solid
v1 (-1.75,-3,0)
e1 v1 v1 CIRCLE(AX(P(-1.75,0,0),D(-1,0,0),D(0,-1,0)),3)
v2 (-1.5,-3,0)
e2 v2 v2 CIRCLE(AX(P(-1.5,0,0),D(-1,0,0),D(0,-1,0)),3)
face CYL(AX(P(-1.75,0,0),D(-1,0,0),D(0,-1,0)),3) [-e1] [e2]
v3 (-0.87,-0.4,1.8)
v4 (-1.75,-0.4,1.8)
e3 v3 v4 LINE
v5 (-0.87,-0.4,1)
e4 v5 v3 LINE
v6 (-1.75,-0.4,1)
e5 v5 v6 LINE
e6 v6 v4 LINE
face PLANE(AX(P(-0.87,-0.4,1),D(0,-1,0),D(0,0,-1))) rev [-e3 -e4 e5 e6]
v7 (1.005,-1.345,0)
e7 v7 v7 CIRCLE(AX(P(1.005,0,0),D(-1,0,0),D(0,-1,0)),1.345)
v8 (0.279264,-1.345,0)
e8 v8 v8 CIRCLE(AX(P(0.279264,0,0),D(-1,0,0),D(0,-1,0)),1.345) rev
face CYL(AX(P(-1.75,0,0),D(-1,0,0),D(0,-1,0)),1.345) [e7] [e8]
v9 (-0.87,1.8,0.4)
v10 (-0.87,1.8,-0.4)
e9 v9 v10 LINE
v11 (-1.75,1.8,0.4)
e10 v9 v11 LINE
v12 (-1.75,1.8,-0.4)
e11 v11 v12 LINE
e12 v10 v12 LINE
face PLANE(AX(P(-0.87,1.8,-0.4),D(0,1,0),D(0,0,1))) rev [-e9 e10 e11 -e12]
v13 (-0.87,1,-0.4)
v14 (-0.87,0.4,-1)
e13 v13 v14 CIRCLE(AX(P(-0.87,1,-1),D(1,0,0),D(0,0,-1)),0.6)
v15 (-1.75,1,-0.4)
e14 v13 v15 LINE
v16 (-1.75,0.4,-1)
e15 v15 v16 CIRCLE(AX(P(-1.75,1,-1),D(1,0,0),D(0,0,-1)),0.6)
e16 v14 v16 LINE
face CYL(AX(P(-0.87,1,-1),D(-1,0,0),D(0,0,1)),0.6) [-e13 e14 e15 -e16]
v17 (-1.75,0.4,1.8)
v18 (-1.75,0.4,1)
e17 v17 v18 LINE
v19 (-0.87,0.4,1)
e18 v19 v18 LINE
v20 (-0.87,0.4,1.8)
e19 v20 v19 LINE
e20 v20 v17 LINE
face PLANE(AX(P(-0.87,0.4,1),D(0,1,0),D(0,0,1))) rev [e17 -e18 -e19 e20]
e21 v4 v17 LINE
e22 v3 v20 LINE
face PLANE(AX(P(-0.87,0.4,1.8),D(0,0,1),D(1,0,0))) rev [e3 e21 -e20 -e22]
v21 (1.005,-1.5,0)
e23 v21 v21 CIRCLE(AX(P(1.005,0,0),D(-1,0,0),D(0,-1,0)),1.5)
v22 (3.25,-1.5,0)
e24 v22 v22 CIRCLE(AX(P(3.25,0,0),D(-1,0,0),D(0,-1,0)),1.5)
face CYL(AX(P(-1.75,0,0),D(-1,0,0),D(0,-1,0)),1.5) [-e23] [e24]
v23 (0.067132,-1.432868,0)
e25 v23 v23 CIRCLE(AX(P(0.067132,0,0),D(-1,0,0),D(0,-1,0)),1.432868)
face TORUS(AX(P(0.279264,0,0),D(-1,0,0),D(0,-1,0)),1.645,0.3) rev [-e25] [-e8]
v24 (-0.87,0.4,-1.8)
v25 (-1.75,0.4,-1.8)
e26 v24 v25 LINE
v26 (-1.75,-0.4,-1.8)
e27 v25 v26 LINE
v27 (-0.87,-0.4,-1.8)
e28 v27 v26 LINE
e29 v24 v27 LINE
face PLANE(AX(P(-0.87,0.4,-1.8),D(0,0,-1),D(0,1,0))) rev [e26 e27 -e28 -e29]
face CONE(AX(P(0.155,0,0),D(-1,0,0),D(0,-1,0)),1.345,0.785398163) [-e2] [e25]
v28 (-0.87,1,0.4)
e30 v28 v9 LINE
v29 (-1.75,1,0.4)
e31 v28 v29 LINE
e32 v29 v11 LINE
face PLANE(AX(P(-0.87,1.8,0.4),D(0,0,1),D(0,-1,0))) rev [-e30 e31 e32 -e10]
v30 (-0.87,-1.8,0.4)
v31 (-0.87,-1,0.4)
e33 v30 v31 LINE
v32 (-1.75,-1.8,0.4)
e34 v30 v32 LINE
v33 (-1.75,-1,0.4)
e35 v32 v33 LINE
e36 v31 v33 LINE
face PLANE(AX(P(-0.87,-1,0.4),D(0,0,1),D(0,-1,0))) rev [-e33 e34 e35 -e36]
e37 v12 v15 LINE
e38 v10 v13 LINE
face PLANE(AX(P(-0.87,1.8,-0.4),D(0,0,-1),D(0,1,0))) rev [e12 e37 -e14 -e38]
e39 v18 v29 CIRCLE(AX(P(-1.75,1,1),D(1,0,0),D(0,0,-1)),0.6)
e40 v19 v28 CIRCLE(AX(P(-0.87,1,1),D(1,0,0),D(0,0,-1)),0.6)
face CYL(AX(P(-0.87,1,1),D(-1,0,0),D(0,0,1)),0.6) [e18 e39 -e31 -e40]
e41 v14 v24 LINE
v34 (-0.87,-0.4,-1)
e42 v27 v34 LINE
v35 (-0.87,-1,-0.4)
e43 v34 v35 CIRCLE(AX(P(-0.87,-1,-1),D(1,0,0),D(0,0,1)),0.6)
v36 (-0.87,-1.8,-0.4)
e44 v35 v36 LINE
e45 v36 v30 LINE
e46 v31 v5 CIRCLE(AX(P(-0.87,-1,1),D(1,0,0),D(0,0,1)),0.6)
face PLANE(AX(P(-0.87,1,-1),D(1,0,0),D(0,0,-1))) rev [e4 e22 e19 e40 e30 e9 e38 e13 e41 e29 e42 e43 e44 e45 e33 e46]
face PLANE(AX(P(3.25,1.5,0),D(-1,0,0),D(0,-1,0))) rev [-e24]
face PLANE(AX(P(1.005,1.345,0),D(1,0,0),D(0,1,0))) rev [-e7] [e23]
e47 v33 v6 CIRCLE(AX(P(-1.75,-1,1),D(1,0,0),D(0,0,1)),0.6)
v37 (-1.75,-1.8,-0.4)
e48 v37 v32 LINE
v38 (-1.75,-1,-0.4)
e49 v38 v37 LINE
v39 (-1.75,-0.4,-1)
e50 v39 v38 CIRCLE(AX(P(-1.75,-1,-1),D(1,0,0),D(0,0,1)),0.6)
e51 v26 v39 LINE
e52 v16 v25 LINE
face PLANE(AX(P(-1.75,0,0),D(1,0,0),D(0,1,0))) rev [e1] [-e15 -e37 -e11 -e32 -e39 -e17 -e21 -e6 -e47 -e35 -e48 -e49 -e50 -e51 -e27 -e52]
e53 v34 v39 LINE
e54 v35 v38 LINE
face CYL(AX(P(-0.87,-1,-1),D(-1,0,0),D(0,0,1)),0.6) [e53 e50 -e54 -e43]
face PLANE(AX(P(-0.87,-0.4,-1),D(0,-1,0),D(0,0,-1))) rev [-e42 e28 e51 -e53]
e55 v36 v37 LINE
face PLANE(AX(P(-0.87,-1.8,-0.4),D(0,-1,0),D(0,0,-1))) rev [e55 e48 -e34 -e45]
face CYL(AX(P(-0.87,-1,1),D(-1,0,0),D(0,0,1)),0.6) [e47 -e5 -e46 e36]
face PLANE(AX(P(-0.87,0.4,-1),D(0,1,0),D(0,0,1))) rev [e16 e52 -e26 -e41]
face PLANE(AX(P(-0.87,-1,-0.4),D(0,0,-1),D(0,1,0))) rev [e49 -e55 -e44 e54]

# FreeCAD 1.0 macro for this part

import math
import FreeCAD as App
import Part
import Sketcher
from FreeCAD import Vector
Q = App.Units.Quantity


def edges_at(feature, points):
    """Names of the edges that pass closest to the given points."""
    edges = feature.Shape.Edges
    near = lambda p: min(range(len(edges)), key=lambda i: edges[i].distToShape(Part.Vertex(*p))[0])
    return sorted({f"Edge{near(p) + 1}" for p in points})

doc = App.newDocument("Part")
body = doc.addObject("PartDesign::Body", "Body")

# Sketch on XY plane
sketch1 = body.newObject("Sketcher::SketchObject", "Sketch")
sketch1.AttachmentSupport = (doc.getObject("XY_Plane"), [""])
sketch1.MapMode = "FlatFace"
sketch1.addGeometry(Part.LineSegment(Vector(-1.75, 3, 0), Vector(-1.75, 0, 0)), False)
sketch1.addGeometry(Part.LineSegment(Vector(-1.75, 0, 0), Vector(3.25, 0, 0)), False)
sketch1.addGeometry(Part.LineSegment(Vector(3.25, 0, 0), Vector(3.25, 1.5, 0)), False)
sketch1.addGeometry(Part.LineSegment(Vector(3.25, 1.5, 0), Vector(1, 1.5, 0)), False)
sketch1.addGeometry(Part.LineSegment(Vector(1, 1.5, 0), Vector(1, 1.34, 0)), False)
sketch1.addGeometry(Part.LineSegment(Vector(1, 1.34, 0), Vector(0.15, 1.34, 0)), False)
sketch1.addGeometry(Part.LineSegment(Vector(0.15, 1.34, 0), Vector(-1.5, 3, 0)), False)
sketch1.addGeometry(Part.LineSegment(Vector(-1.5, 3, 0), Vector(-1.75, 3, 0)), False)
sketch1.addConstraint(Sketcher.Constraint("Coincident", 0, 2, 1, 1))
sketch1.addConstraint(Sketcher.Constraint("Coincident", 1, 2, 2, 1))
sketch1.addConstraint(Sketcher.Constraint("Coincident", 2, 2, 3, 1))
sketch1.addConstraint(Sketcher.Constraint("Coincident", 3, 2, 4, 1))
sketch1.addConstraint(Sketcher.Constraint("Coincident", 4, 2, 5, 1))
sketch1.addConstraint(Sketcher.Constraint("Coincident", 5, 2, 6, 1))
sketch1.addConstraint(Sketcher.Constraint("Coincident", 6, 2, 7, 1))
sketch1.addConstraint(Sketcher.Constraint("Coincident", 7, 2, 0, 1))
sketch1.addConstraint(Sketcher.Constraint("Vertical", 0))
sketch1.addConstraint(Sketcher.Constraint("Horizontal", 1))
sketch1.addConstraint(Sketcher.Constraint("Vertical", 2))
sketch1.addConstraint(Sketcher.Constraint("Horizontal", 3))
sketch1.addConstraint(Sketcher.Constraint("Vertical", 4))
sketch1.addConstraint(Sketcher.Constraint("Horizontal", 5))
sketch1.addConstraint(Sketcher.Constraint("Horizontal", 7))
sketch1.addConstraint(Sketcher.Constraint("PointOnObject", 0, 2, -1))
sketch1.addConstraint(Sketcher.Constraint("DistanceX", 1, 1, 1, 2, Q("5 mm")))
sketch1.addConstraint(Sketcher.Constraint("DistanceY", 0, 2, 0, 1, Q("3 mm")))
sketch1.addConstraint(Sketcher.Constraint("Angle", 6, Q("135 deg")))
sketch1.addConstraint(Sketcher.Constraint("DistanceY", 2, 1, 2, 2, Q("1.5 mm")))
sketch1.addConstraint(Sketcher.Constraint("DistanceX", 5, 2, 5, 1, Q("0.85 mm")))
sketch1.addConstraint(Sketcher.Constraint("DistanceX", 7, 2, 7, 1, Q("0.25 mm")))
sketch1.addConstraint(Sketcher.Constraint("DistanceX", 6, 2, -1, 1, Q("1.5 mm")))
sketch1.addConstraint(Sketcher.Constraint("DistanceX", 3, 2, 3, 1, Q("2.245 mm")))
revolution = body.newObject("PartDesign::Revolution", "Revolution")
revolution.Profile = sketch1
revolution.ReferenceAxis = (sketch1, ["H_Axis"])
revolution.Angle = 360
doc.recompute()

fillet = body.newObject("PartDesign::Fillet", "Fillet")
fillet.Base = (revolution, edges_at(revolution, [(0.155, 1.345, 0)]))
fillet.Radius = 0.3

# Sketch on YZ plane
sketch2 = body.newObject("Sketcher::SketchObject", "Sketch001")
sketch2.AttachmentSupport = (doc.getObject("YZ_Plane"), [""])
sketch2.MapMode = "FlatFace"
sketch2.AttachmentOffset = App.Placement(Vector(0, 0, -1.75), App.Rotation())
sketch2.addGeometry(Part.LineSegment(Vector(1.8, 0.4, 0), Vector(1.8, -0.4, 0)), False)
sketch2.addGeometry(Part.LineSegment(Vector(1.8, -0.4, 0), Vector(1, -0.4, 0)), False)
sketch2.addGeometry(Part.ArcOfCircle(Part.Circle(Vector(1, -1, 0), Vector(0, 0, 1), 0.6), math.radians(90), math.radians(180)), False)
sketch2.addGeometry(Part.LineSegment(Vector(0.4, -1, 0), Vector(0.4, -1.8, 0)), False)
sketch2.addGeometry(Part.LineSegment(Vector(0.4, -1.8, 0), Vector(-0.4, -1.8, 0)), False)
sketch2.addGeometry(Part.LineSegment(Vector(-0.4, -1.8, 0), Vector(-0.4, -1, 0)), False)
sketch2.addGeometry(Part.ArcOfCircle(Part.Circle(Vector(-1, -1, 0), Vector(0, 0, 1), 0.6), math.radians(0), math.radians(90)), False)
sketch2.addGeometry(Part.LineSegment(Vector(-1, -0.4, 0), Vector(-1.8, -0.4, 0)), False)
sketch2.addGeometry(Part.LineSegment(Vector(-1.8, -0.4, 0), Vector(-1.8, 0.4, 0)), False)
sketch2.addGeometry(Part.LineSegment(Vector(-1.8, 0.4, 0), Vector(-1, 0.4, 0)), False)
sketch2.addGeometry(Part.ArcOfCircle(Part.Circle(Vector(-1, 1, 0), Vector(0, 0, 1), 0.6), math.radians(-90), math.radians(0)), False)
sketch2.addGeometry(Part.LineSegment(Vector(-0.4, 1, 0), Vector(-0.4, 1.8, 0)), False)
sketch2.addGeometry(Part.LineSegment(Vector(-0.4, 1.8, 0), Vector(0.4, 1.8, 0)), False)
sketch2.addGeometry(Part.LineSegment(Vector(0.4, 1.8, 0), Vector(0.4, 1, 0)), False)
sketch2.addGeometry(Part.ArcOfCircle(Part.Circle(Vector(1, 1, 0), Vector(0, 0, 1), 0.6), math.radians(180), math.radians(270)), False)
sketch2.addGeometry(Part.LineSegment(Vector(1, 0.4, 0), Vector(1.8, 0.4, 0)), False)
sketch2.addConstraint(Sketcher.Constraint("Coincident", 0, 2, 1, 1))
sketch2.addConstraint(Sketcher.Constraint("Tangent", 1, 2, 2, 1))
sketch2.addConstraint(Sketcher.Constraint("Tangent", 2, 2, 3, 1))
sketch2.addConstraint(Sketcher.Constraint("Coincident", 3, 2, 4, 1))
sketch2.addConstraint(Sketcher.Constraint("Coincident", 4, 2, 5, 1))
sketch2.addConstraint(Sketcher.Constraint("Tangent", 5, 2, 6, 1))
sketch2.addConstraint(Sketcher.Constraint("Tangent", 6, 2, 7, 1))
sketch2.addConstraint(Sketcher.Constraint("Coincident", 7, 2, 8, 1))
sketch2.addConstraint(Sketcher.Constraint("Coincident", 8, 2, 9, 1))
sketch2.addConstraint(Sketcher.Constraint("Tangent", 9, 2, 10, 1))
sketch2.addConstraint(Sketcher.Constraint("Tangent", 10, 2, 11, 1))
sketch2.addConstraint(Sketcher.Constraint("Coincident", 11, 2, 12, 1))
sketch2.addConstraint(Sketcher.Constraint("Coincident", 12, 2, 13, 1))
sketch2.addConstraint(Sketcher.Constraint("Tangent", 13, 2, 14, 1))
sketch2.addConstraint(Sketcher.Constraint("Tangent", 14, 2, 15, 1))
sketch2.addConstraint(Sketcher.Constraint("Coincident", 15, 2, 0, 1))
sketch2.addConstraint(Sketcher.Constraint("Vertical", 0))
sketch2.addConstraint(Sketcher.Constraint("Horizontal", 1))
sketch2.addConstraint(Sketcher.Constraint("Vertical", 3))
sketch2.addConstraint(Sketcher.Constraint("Horizontal", 4))
sketch2.addConstraint(Sketcher.Constraint("Vertical", 5))
sketch2.addConstraint(Sketcher.Constraint("Horizontal", 7))
sketch2.addConstraint(Sketcher.Constraint("Vertical", 8))
sketch2.addConstraint(Sketcher.Constraint("Horizontal", 9))
sketch2.addConstraint(Sketcher.Constraint("Vertical", 11))
sketch2.addConstraint(Sketcher.Constraint("Horizontal", 12))
sketch2.addConstraint(Sketcher.Constraint("Vertical", 13))
sketch2.addConstraint(Sketcher.Constraint("Horizontal", 15))
sketch2.addConstraint(Sketcher.Constraint("Equal", 2, 6))
sketch2.addConstraint(Sketcher.Constraint("Equal", 6, 10))
sketch2.addConstraint(Sketcher.Constraint("Equal", 10, 14))
sketch2.addConstraint(Sketcher.Constraint("Symmetric", 2, 3, 10, 3, -1, 1))
sketch2.addConstraint(Sketcher.Constraint("Symmetric", 6, 3, 14, 3, -1, 1))
sketch2.addConstraint(Sketcher.Constraint("Symmetric", 2, 3, 6, 3, -2))
sketch2.addConstraint(Sketcher.Constraint("Equal", 1, 4))
sketch2.addConstraint(Sketcher.Constraint("Equal", 4, 7))
sketch2.addConstraint(Sketcher.Constraint("Equal", 15, 0))
sketch2.addConstraint(Sketcher.Constraint("Equal", 0, 3))
sketch2.addConstraint(Sketcher.Constraint("Equal", 8, 11))
sketch2.addConstraint(Sketcher.Constraint("Radius", 2, Q("0.6 mm")))
sketch2.addConstraint(Sketcher.Constraint("DistanceX", 1, 2, 1, 1, Q("0.8 mm")))
pocket1 = body.newObject("PartDesign::Pocket", "Pocket")
pocket1.Profile = sketch2
pocket1.Length = 0.88
pocket1.Reversed = True

doc.recompute()
